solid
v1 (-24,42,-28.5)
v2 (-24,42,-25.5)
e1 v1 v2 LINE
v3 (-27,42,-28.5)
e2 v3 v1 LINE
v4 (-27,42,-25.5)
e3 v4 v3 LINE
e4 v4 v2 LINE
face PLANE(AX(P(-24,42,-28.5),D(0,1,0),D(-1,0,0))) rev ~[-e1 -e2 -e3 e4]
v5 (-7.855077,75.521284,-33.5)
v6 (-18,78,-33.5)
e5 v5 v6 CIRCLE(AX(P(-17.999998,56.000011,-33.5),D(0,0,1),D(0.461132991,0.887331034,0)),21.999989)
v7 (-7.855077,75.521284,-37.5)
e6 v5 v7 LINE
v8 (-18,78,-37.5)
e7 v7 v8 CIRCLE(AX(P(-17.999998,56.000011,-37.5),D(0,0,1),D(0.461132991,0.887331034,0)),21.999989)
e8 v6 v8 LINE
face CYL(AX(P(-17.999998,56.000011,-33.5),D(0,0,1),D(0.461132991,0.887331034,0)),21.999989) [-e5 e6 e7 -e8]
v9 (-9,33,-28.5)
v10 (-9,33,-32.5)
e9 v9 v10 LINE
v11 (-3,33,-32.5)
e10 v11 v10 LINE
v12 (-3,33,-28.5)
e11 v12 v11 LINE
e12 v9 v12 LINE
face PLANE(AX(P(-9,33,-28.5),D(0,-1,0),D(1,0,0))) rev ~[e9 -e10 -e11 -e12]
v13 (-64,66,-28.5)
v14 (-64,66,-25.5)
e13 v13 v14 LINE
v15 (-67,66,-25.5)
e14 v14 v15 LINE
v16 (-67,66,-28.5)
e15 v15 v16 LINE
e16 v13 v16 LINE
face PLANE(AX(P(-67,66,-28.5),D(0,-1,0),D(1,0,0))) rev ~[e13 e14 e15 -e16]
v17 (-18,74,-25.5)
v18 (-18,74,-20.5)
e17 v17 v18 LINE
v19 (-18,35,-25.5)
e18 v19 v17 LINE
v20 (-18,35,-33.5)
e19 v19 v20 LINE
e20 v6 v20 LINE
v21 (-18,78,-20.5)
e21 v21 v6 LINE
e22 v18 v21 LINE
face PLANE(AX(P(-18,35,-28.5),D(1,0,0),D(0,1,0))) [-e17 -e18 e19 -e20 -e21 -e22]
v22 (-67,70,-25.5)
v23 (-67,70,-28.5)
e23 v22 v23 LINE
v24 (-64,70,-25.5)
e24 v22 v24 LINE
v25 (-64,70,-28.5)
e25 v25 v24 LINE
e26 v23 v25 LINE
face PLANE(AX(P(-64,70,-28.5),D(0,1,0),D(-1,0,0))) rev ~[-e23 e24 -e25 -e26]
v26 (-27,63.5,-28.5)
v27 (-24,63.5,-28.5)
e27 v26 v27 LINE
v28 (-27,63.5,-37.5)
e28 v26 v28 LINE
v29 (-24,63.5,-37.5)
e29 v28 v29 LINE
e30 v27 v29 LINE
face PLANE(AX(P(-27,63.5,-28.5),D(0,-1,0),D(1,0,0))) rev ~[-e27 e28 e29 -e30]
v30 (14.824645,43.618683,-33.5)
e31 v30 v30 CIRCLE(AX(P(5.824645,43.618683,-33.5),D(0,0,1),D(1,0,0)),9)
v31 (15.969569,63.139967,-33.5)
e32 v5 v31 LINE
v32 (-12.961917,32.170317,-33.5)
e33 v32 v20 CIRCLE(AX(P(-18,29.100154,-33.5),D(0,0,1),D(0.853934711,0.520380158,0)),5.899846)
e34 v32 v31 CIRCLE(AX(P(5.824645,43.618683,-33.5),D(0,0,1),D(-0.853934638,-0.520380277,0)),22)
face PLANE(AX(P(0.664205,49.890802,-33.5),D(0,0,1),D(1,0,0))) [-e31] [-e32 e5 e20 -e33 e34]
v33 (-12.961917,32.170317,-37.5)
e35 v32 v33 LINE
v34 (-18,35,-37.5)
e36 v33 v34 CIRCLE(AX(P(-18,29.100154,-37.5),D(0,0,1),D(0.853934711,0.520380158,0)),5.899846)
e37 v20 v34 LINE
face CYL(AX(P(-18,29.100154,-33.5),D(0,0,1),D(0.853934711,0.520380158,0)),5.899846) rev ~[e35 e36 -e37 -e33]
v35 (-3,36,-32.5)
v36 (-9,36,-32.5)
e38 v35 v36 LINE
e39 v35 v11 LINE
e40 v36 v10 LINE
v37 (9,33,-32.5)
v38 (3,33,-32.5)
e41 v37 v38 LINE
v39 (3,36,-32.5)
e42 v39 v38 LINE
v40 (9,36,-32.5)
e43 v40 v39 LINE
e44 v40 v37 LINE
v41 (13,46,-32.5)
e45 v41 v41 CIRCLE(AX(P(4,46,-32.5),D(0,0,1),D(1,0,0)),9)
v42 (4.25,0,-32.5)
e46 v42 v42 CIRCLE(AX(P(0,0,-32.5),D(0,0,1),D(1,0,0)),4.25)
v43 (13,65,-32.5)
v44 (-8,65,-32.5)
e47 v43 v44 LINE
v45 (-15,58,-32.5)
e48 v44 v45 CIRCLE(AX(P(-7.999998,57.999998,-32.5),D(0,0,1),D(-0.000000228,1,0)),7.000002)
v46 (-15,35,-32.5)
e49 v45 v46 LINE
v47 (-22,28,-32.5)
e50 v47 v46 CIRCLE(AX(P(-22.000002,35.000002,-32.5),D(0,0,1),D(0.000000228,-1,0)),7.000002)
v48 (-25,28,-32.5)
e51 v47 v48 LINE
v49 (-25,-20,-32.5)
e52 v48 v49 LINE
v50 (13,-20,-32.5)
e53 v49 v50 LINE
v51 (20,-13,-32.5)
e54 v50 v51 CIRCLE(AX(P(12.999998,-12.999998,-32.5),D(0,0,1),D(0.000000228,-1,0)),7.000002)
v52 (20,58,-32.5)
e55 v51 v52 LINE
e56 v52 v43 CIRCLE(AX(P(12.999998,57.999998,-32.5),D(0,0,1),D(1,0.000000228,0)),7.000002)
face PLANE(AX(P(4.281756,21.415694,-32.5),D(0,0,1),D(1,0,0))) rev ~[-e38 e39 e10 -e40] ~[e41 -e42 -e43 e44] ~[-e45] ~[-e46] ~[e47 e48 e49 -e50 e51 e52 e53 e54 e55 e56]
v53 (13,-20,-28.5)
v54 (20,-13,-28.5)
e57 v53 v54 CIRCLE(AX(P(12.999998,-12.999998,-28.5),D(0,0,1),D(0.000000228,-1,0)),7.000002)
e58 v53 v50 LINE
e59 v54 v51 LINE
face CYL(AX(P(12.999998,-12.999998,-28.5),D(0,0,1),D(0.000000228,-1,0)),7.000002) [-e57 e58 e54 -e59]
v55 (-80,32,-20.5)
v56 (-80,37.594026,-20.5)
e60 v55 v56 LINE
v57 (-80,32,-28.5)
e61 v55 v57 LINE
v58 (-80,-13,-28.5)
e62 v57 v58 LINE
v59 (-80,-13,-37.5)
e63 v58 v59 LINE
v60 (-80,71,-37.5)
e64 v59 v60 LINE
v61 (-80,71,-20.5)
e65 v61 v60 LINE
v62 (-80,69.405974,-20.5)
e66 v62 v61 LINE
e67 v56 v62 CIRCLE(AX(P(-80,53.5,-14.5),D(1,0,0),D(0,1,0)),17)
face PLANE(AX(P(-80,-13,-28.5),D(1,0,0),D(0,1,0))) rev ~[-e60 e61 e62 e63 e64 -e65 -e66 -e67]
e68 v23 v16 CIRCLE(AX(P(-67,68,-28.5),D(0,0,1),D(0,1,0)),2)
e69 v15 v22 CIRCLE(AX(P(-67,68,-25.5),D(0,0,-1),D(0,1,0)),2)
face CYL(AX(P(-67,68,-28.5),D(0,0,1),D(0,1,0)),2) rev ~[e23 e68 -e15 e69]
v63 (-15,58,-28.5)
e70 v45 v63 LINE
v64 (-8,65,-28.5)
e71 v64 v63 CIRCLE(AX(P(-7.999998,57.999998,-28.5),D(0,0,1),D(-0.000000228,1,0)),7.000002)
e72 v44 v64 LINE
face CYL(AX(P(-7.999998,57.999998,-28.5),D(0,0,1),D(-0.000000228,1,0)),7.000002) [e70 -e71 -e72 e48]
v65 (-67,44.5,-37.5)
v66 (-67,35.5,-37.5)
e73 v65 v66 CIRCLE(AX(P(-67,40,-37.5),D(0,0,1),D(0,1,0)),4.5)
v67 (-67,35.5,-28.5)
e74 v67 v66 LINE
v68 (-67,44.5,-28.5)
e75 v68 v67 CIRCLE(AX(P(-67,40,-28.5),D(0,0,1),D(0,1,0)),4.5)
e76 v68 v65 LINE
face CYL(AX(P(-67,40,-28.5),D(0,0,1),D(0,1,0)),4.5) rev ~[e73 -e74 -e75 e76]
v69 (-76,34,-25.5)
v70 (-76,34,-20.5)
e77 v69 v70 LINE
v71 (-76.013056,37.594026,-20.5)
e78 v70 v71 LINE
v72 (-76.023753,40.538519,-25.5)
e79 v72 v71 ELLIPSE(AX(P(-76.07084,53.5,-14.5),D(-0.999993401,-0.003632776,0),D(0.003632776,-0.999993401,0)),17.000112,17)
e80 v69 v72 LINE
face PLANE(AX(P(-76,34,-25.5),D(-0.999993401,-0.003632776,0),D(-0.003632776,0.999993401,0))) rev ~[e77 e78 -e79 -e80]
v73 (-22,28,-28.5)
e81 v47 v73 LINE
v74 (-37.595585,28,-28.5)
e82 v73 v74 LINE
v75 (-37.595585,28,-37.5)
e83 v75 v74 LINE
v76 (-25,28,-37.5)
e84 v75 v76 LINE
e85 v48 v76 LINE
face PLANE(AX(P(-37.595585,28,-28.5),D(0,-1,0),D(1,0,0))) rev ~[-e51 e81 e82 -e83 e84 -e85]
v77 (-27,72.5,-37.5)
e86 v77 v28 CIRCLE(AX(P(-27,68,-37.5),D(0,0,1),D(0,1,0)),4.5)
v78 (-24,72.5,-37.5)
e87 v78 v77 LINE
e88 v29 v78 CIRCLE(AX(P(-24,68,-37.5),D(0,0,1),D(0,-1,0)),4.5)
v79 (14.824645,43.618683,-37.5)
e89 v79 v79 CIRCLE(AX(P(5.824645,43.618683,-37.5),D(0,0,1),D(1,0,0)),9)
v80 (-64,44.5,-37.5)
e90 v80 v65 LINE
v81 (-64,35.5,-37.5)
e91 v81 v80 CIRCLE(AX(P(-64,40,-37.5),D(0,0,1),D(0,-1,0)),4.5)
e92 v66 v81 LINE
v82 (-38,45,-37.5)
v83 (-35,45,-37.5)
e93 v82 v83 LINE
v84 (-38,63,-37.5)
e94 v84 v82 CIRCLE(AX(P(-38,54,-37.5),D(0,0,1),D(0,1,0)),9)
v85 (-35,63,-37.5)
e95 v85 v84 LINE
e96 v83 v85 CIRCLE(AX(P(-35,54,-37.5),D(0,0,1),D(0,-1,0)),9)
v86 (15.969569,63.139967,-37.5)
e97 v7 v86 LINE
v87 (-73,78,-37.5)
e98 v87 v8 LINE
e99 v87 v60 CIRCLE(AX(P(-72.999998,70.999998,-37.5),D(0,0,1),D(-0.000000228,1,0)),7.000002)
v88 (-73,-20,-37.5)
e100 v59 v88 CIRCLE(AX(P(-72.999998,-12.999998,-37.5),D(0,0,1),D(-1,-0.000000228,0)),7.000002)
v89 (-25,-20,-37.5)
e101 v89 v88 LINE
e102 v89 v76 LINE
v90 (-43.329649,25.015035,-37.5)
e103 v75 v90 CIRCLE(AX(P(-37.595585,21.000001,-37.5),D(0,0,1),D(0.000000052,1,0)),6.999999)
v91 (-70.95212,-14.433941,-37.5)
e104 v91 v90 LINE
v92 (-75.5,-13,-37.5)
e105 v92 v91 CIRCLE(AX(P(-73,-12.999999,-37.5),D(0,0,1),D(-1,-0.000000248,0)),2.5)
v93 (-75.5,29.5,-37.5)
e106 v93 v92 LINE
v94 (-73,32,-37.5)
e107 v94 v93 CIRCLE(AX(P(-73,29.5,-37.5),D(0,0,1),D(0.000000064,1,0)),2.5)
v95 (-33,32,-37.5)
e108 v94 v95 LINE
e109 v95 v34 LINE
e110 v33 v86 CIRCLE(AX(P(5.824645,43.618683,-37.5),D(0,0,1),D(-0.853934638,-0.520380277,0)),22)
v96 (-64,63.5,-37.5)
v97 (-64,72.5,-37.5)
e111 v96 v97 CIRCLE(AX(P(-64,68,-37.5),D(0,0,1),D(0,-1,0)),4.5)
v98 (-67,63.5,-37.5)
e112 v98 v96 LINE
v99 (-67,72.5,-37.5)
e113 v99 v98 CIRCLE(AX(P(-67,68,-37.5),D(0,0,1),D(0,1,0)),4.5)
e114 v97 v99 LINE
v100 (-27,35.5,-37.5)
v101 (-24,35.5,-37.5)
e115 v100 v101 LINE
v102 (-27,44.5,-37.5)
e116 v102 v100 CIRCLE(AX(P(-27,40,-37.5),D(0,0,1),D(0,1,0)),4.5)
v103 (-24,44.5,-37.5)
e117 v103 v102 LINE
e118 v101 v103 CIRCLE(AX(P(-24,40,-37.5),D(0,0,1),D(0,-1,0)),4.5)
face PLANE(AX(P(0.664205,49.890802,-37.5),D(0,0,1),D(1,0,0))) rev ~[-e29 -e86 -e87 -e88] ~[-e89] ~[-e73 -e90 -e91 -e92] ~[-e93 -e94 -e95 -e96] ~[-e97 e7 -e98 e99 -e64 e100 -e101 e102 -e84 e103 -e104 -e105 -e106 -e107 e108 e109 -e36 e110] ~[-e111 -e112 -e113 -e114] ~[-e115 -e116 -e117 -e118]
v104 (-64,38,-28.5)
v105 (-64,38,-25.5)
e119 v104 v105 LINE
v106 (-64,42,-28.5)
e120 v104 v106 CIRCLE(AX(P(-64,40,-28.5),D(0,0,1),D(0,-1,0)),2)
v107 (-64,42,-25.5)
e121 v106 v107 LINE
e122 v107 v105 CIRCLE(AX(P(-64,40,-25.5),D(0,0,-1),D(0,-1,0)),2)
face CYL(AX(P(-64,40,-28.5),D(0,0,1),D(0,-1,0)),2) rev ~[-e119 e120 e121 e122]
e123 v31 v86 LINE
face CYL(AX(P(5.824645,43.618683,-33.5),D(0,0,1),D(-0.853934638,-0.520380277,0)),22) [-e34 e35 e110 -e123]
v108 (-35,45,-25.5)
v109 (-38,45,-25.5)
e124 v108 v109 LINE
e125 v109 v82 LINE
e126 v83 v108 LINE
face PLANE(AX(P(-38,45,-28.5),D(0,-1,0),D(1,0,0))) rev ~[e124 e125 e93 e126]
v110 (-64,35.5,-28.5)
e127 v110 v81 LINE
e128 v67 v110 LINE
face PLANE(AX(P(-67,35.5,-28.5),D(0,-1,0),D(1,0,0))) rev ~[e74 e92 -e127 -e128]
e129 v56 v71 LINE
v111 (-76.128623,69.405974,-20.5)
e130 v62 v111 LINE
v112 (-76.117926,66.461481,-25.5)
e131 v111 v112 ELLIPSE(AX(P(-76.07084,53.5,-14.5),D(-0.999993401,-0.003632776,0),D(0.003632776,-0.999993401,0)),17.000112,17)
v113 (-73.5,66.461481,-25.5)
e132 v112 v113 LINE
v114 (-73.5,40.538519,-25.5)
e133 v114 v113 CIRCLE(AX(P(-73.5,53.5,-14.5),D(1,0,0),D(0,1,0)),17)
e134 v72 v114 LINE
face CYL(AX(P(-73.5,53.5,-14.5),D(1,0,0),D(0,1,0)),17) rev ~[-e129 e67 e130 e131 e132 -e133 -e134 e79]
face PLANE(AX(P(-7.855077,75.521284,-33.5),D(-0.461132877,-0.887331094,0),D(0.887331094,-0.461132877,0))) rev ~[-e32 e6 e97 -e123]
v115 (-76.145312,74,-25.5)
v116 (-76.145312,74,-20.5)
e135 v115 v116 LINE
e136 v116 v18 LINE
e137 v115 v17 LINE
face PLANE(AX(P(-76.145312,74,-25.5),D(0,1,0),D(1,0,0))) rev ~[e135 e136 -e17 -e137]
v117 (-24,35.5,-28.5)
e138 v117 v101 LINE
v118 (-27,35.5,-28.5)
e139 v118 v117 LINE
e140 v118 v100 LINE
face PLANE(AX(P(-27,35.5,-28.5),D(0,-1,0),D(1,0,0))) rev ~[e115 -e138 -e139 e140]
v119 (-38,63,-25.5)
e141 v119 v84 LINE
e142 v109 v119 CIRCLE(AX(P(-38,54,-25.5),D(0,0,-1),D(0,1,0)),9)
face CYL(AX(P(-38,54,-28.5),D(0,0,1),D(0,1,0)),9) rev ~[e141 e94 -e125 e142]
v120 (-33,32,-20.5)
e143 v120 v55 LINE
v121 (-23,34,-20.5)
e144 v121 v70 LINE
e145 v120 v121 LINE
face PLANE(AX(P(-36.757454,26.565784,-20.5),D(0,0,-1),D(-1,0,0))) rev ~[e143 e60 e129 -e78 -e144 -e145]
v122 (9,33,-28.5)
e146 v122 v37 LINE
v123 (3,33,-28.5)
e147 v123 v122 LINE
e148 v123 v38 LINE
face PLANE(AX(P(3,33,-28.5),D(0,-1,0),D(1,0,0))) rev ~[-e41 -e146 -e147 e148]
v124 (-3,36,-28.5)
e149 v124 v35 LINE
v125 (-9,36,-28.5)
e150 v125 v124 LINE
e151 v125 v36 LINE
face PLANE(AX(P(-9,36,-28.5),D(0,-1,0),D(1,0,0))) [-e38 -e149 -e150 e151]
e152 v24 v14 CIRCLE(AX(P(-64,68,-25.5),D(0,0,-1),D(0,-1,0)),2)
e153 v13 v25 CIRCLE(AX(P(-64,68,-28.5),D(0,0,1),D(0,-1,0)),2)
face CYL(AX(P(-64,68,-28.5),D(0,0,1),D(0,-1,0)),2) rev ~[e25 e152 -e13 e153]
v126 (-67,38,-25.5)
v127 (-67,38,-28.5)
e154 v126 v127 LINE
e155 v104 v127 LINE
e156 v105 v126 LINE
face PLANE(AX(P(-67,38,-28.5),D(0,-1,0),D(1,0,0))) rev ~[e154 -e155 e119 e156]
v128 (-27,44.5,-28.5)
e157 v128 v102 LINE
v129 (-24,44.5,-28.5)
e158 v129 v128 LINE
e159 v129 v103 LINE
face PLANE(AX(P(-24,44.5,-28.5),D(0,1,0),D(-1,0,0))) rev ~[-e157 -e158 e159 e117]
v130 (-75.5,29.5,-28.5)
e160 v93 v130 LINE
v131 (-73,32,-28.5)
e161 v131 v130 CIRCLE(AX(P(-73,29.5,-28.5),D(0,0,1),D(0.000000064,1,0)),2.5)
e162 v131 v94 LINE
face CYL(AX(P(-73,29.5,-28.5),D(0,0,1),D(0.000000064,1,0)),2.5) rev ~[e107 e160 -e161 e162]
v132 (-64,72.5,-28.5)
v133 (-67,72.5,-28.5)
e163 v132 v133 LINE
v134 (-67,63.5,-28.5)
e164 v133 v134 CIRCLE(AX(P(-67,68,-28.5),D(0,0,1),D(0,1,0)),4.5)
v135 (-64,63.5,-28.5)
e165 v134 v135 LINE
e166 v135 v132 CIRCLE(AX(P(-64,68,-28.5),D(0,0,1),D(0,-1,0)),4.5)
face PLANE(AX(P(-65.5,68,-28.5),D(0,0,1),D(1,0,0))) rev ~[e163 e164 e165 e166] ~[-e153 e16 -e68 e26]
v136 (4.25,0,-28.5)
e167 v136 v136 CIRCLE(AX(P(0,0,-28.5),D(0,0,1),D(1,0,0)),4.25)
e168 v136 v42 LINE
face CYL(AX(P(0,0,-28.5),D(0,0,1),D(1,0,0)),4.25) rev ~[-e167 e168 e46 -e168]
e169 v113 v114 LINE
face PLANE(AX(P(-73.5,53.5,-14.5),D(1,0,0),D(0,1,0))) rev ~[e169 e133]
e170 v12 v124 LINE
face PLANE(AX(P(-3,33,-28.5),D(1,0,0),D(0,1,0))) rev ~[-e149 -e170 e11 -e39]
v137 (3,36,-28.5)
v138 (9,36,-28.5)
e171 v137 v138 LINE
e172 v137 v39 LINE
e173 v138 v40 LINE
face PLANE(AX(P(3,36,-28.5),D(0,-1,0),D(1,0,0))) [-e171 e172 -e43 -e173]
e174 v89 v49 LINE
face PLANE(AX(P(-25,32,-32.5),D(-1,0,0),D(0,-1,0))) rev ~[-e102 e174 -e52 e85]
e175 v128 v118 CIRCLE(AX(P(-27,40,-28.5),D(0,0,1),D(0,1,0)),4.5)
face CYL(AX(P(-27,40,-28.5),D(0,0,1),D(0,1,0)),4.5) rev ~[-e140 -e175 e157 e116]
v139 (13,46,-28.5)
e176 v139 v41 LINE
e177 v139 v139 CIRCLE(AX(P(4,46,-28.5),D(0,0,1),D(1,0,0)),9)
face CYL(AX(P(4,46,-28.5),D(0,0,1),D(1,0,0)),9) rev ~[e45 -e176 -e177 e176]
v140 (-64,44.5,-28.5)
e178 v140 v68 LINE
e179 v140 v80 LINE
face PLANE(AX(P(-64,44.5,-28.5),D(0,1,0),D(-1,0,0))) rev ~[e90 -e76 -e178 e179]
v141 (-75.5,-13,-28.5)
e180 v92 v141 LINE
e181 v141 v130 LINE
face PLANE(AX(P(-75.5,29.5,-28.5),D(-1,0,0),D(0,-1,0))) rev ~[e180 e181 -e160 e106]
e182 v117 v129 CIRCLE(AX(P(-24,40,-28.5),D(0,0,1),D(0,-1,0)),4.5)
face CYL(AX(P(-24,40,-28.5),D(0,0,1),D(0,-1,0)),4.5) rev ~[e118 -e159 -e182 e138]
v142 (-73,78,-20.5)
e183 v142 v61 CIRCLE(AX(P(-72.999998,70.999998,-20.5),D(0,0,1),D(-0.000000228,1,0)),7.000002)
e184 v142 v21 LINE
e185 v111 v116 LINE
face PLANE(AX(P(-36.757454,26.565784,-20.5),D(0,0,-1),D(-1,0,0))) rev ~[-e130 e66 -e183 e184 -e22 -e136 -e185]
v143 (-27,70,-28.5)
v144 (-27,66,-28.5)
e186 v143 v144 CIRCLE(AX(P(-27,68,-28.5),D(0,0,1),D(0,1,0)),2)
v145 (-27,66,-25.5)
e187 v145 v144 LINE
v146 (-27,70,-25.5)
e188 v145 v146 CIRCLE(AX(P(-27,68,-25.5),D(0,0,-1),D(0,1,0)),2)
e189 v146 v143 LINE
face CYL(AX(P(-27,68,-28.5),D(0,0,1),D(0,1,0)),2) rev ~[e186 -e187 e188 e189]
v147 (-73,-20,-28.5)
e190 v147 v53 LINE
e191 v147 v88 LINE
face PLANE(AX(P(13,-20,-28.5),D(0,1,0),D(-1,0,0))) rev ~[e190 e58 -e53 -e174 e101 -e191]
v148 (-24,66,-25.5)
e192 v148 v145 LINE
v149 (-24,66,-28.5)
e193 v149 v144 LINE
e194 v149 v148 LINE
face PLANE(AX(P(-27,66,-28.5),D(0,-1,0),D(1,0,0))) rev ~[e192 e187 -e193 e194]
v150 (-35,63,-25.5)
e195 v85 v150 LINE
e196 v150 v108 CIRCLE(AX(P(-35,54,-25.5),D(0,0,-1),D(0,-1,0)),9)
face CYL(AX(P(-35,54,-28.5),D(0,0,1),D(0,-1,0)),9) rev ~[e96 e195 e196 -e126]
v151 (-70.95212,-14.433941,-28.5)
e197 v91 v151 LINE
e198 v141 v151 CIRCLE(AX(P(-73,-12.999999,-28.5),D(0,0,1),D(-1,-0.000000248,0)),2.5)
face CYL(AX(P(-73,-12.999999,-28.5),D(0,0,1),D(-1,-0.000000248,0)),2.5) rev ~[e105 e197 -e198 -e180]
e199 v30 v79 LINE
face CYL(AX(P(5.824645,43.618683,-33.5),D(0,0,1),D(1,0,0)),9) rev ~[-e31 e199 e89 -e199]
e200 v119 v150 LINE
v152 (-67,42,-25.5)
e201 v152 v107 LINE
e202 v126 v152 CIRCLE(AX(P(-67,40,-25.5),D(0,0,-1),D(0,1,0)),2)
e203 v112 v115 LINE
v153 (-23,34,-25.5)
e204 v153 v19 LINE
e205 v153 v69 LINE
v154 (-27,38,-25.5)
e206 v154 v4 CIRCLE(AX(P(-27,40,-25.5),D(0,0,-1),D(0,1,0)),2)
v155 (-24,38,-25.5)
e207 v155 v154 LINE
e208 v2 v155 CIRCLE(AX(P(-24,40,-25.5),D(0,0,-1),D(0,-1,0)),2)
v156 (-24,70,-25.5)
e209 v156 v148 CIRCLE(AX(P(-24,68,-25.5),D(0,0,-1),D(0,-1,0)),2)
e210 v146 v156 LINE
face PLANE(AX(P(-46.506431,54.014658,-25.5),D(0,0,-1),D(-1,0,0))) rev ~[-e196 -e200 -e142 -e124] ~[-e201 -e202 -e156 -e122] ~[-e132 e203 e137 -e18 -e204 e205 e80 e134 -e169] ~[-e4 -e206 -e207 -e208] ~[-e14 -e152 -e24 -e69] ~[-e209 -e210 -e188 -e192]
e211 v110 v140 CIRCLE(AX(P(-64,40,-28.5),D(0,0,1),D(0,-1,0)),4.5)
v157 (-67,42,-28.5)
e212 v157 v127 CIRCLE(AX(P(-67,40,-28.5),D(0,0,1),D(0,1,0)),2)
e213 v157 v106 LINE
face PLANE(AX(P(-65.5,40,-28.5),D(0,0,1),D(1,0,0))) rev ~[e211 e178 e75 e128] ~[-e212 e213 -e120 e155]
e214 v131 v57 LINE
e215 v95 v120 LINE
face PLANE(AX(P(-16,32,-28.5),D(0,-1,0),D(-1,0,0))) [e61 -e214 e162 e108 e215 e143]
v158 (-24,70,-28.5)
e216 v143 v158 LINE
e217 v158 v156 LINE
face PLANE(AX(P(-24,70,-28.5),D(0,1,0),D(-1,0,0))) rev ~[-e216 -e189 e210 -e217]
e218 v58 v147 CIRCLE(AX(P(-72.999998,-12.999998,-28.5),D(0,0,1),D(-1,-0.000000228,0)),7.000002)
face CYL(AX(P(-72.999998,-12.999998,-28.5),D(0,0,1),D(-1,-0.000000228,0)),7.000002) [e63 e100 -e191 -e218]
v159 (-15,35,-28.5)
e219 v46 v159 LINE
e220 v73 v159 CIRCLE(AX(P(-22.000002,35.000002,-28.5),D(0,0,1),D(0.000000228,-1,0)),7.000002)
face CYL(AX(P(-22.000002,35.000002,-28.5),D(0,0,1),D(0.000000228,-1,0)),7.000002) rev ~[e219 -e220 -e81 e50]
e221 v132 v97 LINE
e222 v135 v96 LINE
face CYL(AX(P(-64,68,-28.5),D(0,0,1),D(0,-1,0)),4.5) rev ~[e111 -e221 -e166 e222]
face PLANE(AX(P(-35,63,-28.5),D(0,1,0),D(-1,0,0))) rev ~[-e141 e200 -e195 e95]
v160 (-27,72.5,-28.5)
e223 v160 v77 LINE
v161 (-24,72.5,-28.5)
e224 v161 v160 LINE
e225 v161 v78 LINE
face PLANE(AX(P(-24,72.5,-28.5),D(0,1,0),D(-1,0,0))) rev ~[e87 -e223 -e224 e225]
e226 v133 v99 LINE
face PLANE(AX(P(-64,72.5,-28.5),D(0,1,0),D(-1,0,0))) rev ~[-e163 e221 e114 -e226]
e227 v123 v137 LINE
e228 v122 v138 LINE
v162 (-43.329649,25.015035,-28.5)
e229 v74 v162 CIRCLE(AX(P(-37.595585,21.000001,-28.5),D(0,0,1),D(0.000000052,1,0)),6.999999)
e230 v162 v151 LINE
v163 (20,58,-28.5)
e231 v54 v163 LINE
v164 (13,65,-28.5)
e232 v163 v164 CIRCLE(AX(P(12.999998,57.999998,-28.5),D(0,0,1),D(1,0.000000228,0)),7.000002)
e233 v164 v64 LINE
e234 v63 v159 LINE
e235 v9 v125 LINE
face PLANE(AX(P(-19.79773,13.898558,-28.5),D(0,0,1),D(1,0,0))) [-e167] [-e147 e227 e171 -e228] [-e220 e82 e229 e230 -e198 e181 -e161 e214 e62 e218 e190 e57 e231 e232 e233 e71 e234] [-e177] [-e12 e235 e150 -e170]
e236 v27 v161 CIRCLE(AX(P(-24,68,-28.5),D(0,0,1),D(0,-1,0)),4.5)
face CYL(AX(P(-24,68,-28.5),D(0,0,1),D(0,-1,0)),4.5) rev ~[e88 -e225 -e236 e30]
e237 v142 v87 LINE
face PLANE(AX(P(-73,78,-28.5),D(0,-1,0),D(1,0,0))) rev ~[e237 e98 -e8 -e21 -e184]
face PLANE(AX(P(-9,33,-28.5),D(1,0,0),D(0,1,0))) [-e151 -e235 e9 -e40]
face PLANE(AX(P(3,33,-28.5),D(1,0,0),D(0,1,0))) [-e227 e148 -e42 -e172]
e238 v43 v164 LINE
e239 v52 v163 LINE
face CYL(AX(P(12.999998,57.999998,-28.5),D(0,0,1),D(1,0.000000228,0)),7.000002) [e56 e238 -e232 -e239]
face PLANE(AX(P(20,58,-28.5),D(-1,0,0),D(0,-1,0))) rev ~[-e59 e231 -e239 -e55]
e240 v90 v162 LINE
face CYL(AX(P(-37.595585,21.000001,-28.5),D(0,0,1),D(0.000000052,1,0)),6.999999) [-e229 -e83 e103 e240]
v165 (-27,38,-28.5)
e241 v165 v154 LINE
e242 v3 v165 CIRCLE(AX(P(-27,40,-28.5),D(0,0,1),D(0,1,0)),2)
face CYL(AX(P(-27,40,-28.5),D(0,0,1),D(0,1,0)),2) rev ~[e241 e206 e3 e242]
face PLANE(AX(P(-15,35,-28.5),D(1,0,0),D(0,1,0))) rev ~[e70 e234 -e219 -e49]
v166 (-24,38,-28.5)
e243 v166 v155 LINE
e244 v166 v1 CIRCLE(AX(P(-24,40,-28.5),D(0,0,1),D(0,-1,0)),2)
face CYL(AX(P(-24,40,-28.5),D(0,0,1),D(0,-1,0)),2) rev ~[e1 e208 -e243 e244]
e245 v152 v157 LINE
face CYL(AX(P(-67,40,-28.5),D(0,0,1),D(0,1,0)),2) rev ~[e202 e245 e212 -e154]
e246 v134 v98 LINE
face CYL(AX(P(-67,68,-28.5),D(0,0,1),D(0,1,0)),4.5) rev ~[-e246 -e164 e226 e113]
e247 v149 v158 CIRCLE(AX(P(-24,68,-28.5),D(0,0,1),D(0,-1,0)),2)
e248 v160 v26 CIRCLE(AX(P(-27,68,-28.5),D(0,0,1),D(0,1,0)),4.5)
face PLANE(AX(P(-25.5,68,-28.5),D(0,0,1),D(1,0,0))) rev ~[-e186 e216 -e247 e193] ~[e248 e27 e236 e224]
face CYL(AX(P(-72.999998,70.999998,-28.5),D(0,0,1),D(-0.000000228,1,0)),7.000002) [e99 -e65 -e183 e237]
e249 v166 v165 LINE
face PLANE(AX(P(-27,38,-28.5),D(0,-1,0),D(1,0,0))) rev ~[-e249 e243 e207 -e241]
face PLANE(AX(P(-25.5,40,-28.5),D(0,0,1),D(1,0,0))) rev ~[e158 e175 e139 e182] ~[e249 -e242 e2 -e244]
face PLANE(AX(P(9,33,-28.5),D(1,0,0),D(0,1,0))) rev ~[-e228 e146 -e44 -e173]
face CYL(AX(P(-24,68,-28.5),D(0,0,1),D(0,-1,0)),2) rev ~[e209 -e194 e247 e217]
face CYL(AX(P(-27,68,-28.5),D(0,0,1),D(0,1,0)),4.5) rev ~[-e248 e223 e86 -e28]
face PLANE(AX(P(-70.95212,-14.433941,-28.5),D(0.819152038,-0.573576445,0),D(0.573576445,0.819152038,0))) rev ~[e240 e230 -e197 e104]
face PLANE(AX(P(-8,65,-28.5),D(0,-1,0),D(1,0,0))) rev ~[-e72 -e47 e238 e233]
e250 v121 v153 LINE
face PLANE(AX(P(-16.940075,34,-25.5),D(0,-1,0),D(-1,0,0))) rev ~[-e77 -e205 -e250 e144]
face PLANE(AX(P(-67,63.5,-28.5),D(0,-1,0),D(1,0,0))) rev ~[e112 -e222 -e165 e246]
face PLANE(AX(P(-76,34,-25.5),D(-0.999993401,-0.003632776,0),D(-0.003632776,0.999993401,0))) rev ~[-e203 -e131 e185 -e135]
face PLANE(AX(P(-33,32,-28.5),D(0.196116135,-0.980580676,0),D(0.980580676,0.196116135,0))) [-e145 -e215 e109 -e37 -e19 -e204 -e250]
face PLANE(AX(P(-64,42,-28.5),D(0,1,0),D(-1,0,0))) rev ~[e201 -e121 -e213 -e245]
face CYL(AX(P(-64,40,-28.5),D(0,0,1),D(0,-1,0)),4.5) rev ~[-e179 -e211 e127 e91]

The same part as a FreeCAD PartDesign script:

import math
import FreeCAD as App
import Part
import Sketcher
from FreeCAD import Vector
Q = App.Units.Quantity

doc = App.newDocument("Part")
body = doc.addObject("PartDesign::Body", "Body")

# Sketch on XY plane
sketch1 = doc.addObject("Sketcher::SketchObject", "Sketch")
body.addObject(sketch1)
sketch1.AttachmentSupport = (doc.XY_Plane, [""])
sketch1.MapMode = "FlatFace"
sketch1.addGeometry([
    Part.LineSegment(Vector(20, -13, 0), Vector(20, 58, 0)),  # 0
    Part.ArcOfCircle(Part.Circle(Vector(13, 58, 0), Vector(0, 0, 1), 7), math.radians(0), math.radians(90)),  # 1
    Part.LineSegment(Vector(13, 65, 0), Vector(-8, 65, 0)),  # 2
    Part.ArcOfCircle(Part.Circle(Vector(-8, 58, 0), Vector(0, 0, 1), 7), math.radians(90), math.radians(180)),  # 3
    Part.LineSegment(Vector(-15, 58, 0), Vector(-15, 35, 0)),  # 4
    Part.ArcOfCircle(Part.Circle(Vector(-22, 35, 0), Vector(0, 0, 1), 7), math.radians(-90), math.radians(0)),  # 5
    Part.LineSegment(Vector(-22, 28, 0), Vector(-37.6, 28, 0)),  # 6
    Part.ArcOfCircle(Part.Circle(Vector(-37.6, 21, 0), Vector(0, 0, 1), 7), math.radians(90), math.radians(145)),  # 7
    Part.LineSegment(Vector(-43.3, 25, 0), Vector(-71, -14.4, 0)),  # 8
    Part.ArcOfCircle(Part.Circle(Vector(-73, -13, 0), Vector(0, 0, 1), 2.5), math.radians(-180), math.radians(-35)),  # 9
    Part.LineSegment(Vector(-75.5, -13, 0), Vector(-75.5, 29.5, 0)),  # 10
    Part.ArcOfCircle(Part.Circle(Vector(-73, 29.5, 0), Vector(0, 0, 1), 2.5), math.radians(90), math.radians(180)),  # 11
    Part.LineSegment(Vector(-73, 32, 0), Vector(-33, 32, 0)),  # 12
    Part.LineSegment(Vector(-33, 32, 0), Vector(-18, 35, 0)),  # 13
    Part.LineSegment(Vector(-18, 35, 0), Vector(-18, 78, 0)),  # 14
    Part.LineSegment(Vector(-18, 78, 0), Vector(-73, 78, 0)),  # 15
    Part.ArcOfCircle(Part.Circle(Vector(-73, 71, 0), Vector(0, 0, 1), 7), math.radians(90), math.radians(180)),  # 16
    Part.LineSegment(Vector(-80, 71, 0), Vector(-80, -13, 0)),  # 17
    Part.ArcOfCircle(Part.Circle(Vector(-73, -13, 0), Vector(0, 0, 1), 7), math.radians(-180), math.radians(-90)),  # 18
    Part.LineSegment(Vector(-73, -20, 0), Vector(13, -20, 0)),  # 19
    Part.ArcOfCircle(Part.Circle(Vector(13, -13, 0), Vector(0, 0, 1), 7), math.radians(-90), math.radians(0)),  # 20
    Part.Circle(Vector(0, 0, 0), Vector(0, 0, 1), 4.2),  # 21
    Part.LineSegment(Vector(3, 33, 0), Vector(3, 36, 0)),  # 22
    Part.LineSegment(Vector(3, 36, 0), Vector(9, 36, 0)),  # 23
    Part.LineSegment(Vector(9, 36, 0), Vector(9, 33, 0)),  # 24
    Part.LineSegment(Vector(9, 33, 0), Vector(3, 33, 0)),  # 25
    Part.LineSegment(Vector(-9, 33, 0), Vector(-9, 36, 0)),  # 26
    Part.LineSegment(Vector(-9, 36, 0), Vector(-3, 36, 0)),  # 27
    Part.LineSegment(Vector(-3, 36, 0), Vector(-3, 33, 0)),  # 28
    Part.LineSegment(Vector(-3, 33, 0), Vector(-9, 33, 0)),  # 29
    Part.Circle(Vector(4, 46, 0), Vector(0, 0, 1), 9),  # 30
    Part.LineSegment(Vector(-27, 42, 0), Vector(-24, 42, 0)),  # 31
    Part.ArcOfCircle(Part.Circle(Vector(-24, 40, 0), Vector(0, 0, 1), 2), math.radians(-90), math.radians(90)),  # 32
    Part.LineSegment(Vector(-24, 38, 0), Vector(-27, 38, 0)),  # 33
    Part.ArcOfCircle(Part.Circle(Vector(-27, 40, 0), Vector(0, 0, 1), 2), math.radians(90), math.radians(270)),  # 34
    Part.LineSegment(Vector(-27, 70, 0), Vector(-24, 70, 0)),  # 35
    Part.ArcOfCircle(Part.Circle(Vector(-24, 68, 0), Vector(0, 0, 1), 2), math.radians(-90), math.radians(90)),  # 36
    Part.LineSegment(Vector(-24, 66, 0), Vector(-27, 66, 0)),  # 37
    Part.ArcOfCircle(Part.Circle(Vector(-27, 68, 0), Vector(0, 0, 1), 2), math.radians(90), math.radians(270)),  # 38
    Part.LineSegment(Vector(-67, 42, 0), Vector(-64, 42, 0)),  # 39
    Part.ArcOfCircle(Part.Circle(Vector(-64, 40, 0), Vector(0, 0, 1), 2), math.radians(-90), math.radians(90)),  # 40
    Part.LineSegment(Vector(-64, 38, 0), Vector(-67, 38, 0)),  # 41
    Part.ArcOfCircle(Part.Circle(Vector(-67, 40, 0), Vector(0, 0, 1), 2), math.radians(90), math.radians(270)),  # 42
    Part.LineSegment(Vector(-38, 63, 0), Vector(-35, 63, 0)),  # 43
    Part.ArcOfCircle(Part.Circle(Vector(-35, 54, 0), Vector(0, 0, 1), 9), math.radians(-90), math.radians(90)),  # 44
    Part.LineSegment(Vector(-35, 45, 0), Vector(-38, 45, 0)),  # 45
    Part.ArcOfCircle(Part.Circle(Vector(-38, 54, 0), Vector(0, 0, 1), 9), math.radians(90), math.radians(270)),  # 46
    Part.LineSegment(Vector(-67, 70, 0), Vector(-64, 70, 0)),  # 47
    Part.ArcOfCircle(Part.Circle(Vector(-64, 68, 0), Vector(0, 0, 1), 2), math.radians(-90), math.radians(90)),  # 48
    Part.LineSegment(Vector(-64, 66, 0), Vector(-67, 66, 0)),  # 49
    Part.ArcOfCircle(Part.Circle(Vector(-67, 68, 0), Vector(0, 0, 1), 2), math.radians(90), math.radians(270)),  # 50
], False)
sketch1.addConstraint([
    Sketcher.Constraint("Tangent", 0, 2, 1, 1),
    Sketcher.Constraint("Tangent", 1, 2, 2, 1),
    Sketcher.Constraint("Tangent", 2, 2, 3, 1),
    Sketcher.Constraint("Tangent", 3, 2, 4, 1),
    Sketcher.Constraint("Tangent", 4, 2, 5, 2),
    Sketcher.Constraint("Tangent", 5, 1, 6, 1),
    Sketcher.Constraint("Tangent", 6, 2, 7, 1),
    Sketcher.Constraint("Tangent", 7, 2, 8, 1),
    Sketcher.Constraint("Tangent", 8, 2, 9, 2),
    Sketcher.Constraint("Tangent", 9, 1, 10, 1),
    Sketcher.Constraint("Tangent", 10, 2, 11, 2),
    Sketcher.Constraint("Tangent", 11, 1, 12, 1),
    Sketcher.Constraint("Coincident", 12, 2, 13, 1),
    Sketcher.Constraint("Coincident", 13, 2, 14, 1),
    Sketcher.Constraint("Coincident", 14, 2, 15, 1),
    Sketcher.Constraint("Tangent", 15, 2, 16, 1),
    Sketcher.Constraint("Tangent", 16, 2, 17, 1),
    Sketcher.Constraint("Tangent", 17, 2, 18, 1),
    Sketcher.Constraint("Tangent", 18, 2, 19, 1),
    Sketcher.Constraint("Tangent", 19, 2, 20, 1),
    Sketcher.Constraint("Tangent", 20, 2, 0, 1),
    Sketcher.Constraint("Coincident", 22, 2, 23, 1),
    Sketcher.Constraint("Coincident", 23, 2, 24, 1),
    Sketcher.Constraint("Coincident", 24, 2, 25, 1),
    Sketcher.Constraint("Coincident", 25, 2, 22, 1),
    Sketcher.Constraint("Coincident", 26, 2, 27, 1),
    Sketcher.Constraint("Coincident", 27, 2, 28, 1),
    Sketcher.Constraint("Coincident", 28, 2, 29, 1),
    Sketcher.Constraint("Coincident", 29, 2, 26, 1),
    Sketcher.Constraint("Tangent", 31, 2, 32, 2),
    Sketcher.Constraint("Tangent", 32, 1, 33, 1),
    Sketcher.Constraint("Tangent", 33, 2, 34, 2),
    Sketcher.Constraint("Tangent", 34, 1, 31, 1),
    Sketcher.Constraint("Tangent", 35, 2, 36, 2),
    Sketcher.Constraint("Tangent", 36, 1, 37, 1),
    Sketcher.Constraint("Tangent", 37, 2, 38, 2),
    Sketcher.Constraint("Tangent", 38, 1, 35, 1),
    Sketcher.Constraint("Tangent", 39, 2, 40, 2),
    Sketcher.Constraint("Tangent", 40, 1, 41, 1),
    Sketcher.Constraint("Tangent", 41, 2, 42, 2),
    Sketcher.Constraint("Tangent", 42, 1, 39, 1),
    Sketcher.Constraint("Tangent", 43, 2, 44, 2),
    Sketcher.Constraint("Tangent", 44, 1, 45, 1),
    Sketcher.Constraint("Tangent", 45, 2, 46, 2),
    Sketcher.Constraint("Tangent", 46, 1, 43, 1),
    Sketcher.Constraint("Tangent", 47, 2, 48, 2),
    Sketcher.Constraint("Tangent", 48, 1, 49, 1),
    Sketcher.Constraint("Tangent", 49, 2, 50, 2),
    Sketcher.Constraint("Tangent", 50, 1, 47, 1),
    Sketcher.Constraint("Vertical", 0),
    Sketcher.Constraint("Horizontal", 2),
    Sketcher.Constraint("Vertical", 4),
    Sketcher.Constraint("Horizontal", 6),
    Sketcher.Constraint("Vertical", 10),
    Sketcher.Constraint("Horizontal", 12),
    Sketcher.Constraint("Vertical", 14),
    Sketcher.Constraint("Horizontal", 15),
    Sketcher.Constraint("Vertical", 17),
    Sketcher.Constraint("Horizontal", 19),
    Sketcher.Constraint("Vertical", 22),
    Sketcher.Constraint("Horizontal", 23),
    Sketcher.Constraint("Vertical", 24),
    Sketcher.Constraint("Horizontal", 25),
    Sketcher.Constraint("Vertical", 26),
    Sketcher.Constraint("Horizontal", 27),
    Sketcher.Constraint("Vertical", 28),
    Sketcher.Constraint("Horizontal", 29),
    Sketcher.Constraint("Horizontal", 31),
    Sketcher.Constraint("Horizontal", 33),
    Sketcher.Constraint("Horizontal", 35),
    Sketcher.Constraint("Horizontal", 37),
    Sketcher.Constraint("Horizontal", 39),
    Sketcher.Constraint("Horizontal", 41),
    Sketcher.Constraint("Horizontal", 43),
    Sketcher.Constraint("Horizontal", 45),
    Sketcher.Constraint("Horizontal", 47),
    Sketcher.Constraint("Horizontal", 49),
    Sketcher.Constraint("Coincident", 21, 3, -1, 1),
    Sketcher.Constraint("Coincident", 18, 3, 9, 3),
    Sketcher.Constraint("Equal", 1, 3),
    Sketcher.Constraint("Equal", 3, 5),
    Sketcher.Constraint("Equal", 9, 11),
    Sketcher.Constraint("Equal", 5, 16),
    Sketcher.Constraint("Equal", 16, 18),
    Sketcher.Constraint("Equal", 18, 20),
    Sketcher.Constraint("Equal", 34, 36),
    Sketcher.Constraint("Equal", 38, 40),
    Sketcher.Constraint("Equal", 30, 44),
    Sketcher.Constraint("Equal", 42, 48),
    Sketcher.Constraint("Symmetric", 23, 2, 26, 2, -2),
    Sketcher.Constraint("Symmetric", 25, 2, 28, 2, -2),
    Sketcher.Constraint("Horizontal", 34, 3, 40, 3),
    Sketcher.Constraint("Horizontal", 38, 3, 48, 3),
    Sketcher.Constraint("Horizontal", 4, 2, 13, 2),
    Sketcher.Constraint("Vertical", 32, 3, 36, 3),
    Sketcher.Constraint("Vertical", 34, 3, 38, 3),
    Sketcher.Constraint("Vertical", 40, 3, 48, 3),
    Sketcher.Constraint("Vertical", 42, 3, 50, 3),
    Sketcher.Constraint("Equal", 37, 39),
    Sketcher.Constraint("Equal", 41, 43),
    Sketcher.Constraint("Equal", 49, 22),
    Sketcher.Constraint("Diameter", 30, Q("18 mm")),
    Sketcher.Constraint("Radius", 1, Q("7.000002 mm")),
    Sketcher.Constraint("Radius", 7, Q("6.999999 mm")),
    Sketcher.Constraint("Radius", 32, Q("2 mm")),
    Sketcher.Constraint("Diameter", 21, Q("8.5 mm")),
    Sketcher.Constraint("Radius", 9, Q("2.5 mm")),
    Sketcher.Constraint("DistanceX", 2, 2, 2, 1, Q("21 mm")),
    Sketcher.Constraint("DistanceX", 12, 1, 12, 2, Q("40 mm")),
    Sketcher.Constraint("DistanceX", 15, 2, 15, 1, Q("55 mm")),
    Sketcher.Constraint("DistanceX", 19, 1, 19, 2, Q("86 mm")),
    Sketcher.Constraint("DistanceX", 23, 1, 23, 2, Q("6 mm")),
    Sketcher.Constraint("DistanceX", 31, 1, 31, 2, Q("3 mm")),
    Sketcher.Constraint("DistanceY", 0, 1, 0, 2, Q("71 mm")),
    Sketcher.Constraint("DistanceY", 4, 2, 4, 1, Q("23 mm")),
    Sketcher.Constraint("DistanceY", 14, 1, 14, 2, Q("43 mm")),
    Sketcher.Constraint("Angle", 8, Q("-125.000001 deg")),
    Sketcher.Constraint("DistanceY", 10, 1, 10, 2, Q("42.5 mm")),
    Sketcher.Constraint("DistanceX", -1, 1, 1, 3, Q("12.999998 mm")),
    Sketcher.Constraint("DistanceY", -1, 1, 1, 3, Q("57.999998 mm")),
    Sketcher.Constraint("DistanceX", -1, 1, 30, 3, Q("4 mm")),
    Sketcher.Constraint("DistanceY", -1, 1, 30, 3, Q("46 mm")),
    Sketcher.Constraint("DistanceX", 32, 3, -1, 1, Q("24 mm")),
    Sketcher.Constraint("DistanceY", -1, 1, 32, 3, Q("40 mm")),
    Sketcher.Constraint("DistanceY", -1, 1, 36, 3, Q("68 mm")),
    Sketcher.Constraint("DistanceX", 40, 3, -1, 1, Q("64 mm")),
    Sketcher.Constraint("DistanceX", 44, 3, -1, 1, Q("35 mm")),
    Sketcher.Constraint("DistanceY", -1, 1, 44, 3, Q("54 mm")),
    Sketcher.Constraint("DistanceX", -1, 1, 22, 2, Q("3 mm")),
    Sketcher.Constraint("DistanceY", -1, 1, 22, 2, Q("36 mm")),
])
pad1 = doc.addObject("PartDesign::Pad", "Pad")
body.addObject(pad1)
pad1.Profile = sketch1
pad1.Type = "TwoLengths"
pad1.Length = 8
pad1.Length2 = 9

# Sketch on XY plane
sketch2 = doc.addObject("Sketcher::SketchObject", "Sketch001")
body.addObject(sketch2)
sketch2.AttachmentSupport = (doc.XY_Plane, [""])
sketch2.MapMode = "FlatFace"
sketch2.AttachmentOffset = App.Placement(Vector(0, 0, 3), App.Rotation())
sketch2.addGeometry([
    Part.LineSegment(Vector(-17, 74, 0), Vector(-76, 74, 0)),
    Part.LineSegment(Vector(-76, 74, 0), Vector(-76, 34, 0)),
    Part.LineSegment(Vector(-76, 34, 0), Vector(-17, 34, 0)),
    Part.LineSegment(Vector(-17, 34, 0), Vector(-17, 74, 0)),
], False)
sketch2.addConstraint([
    Sketcher.Constraint("Coincident", 0, 2, 1, 1),
    Sketcher.Constraint("Coincident", 1, 2, 2, 1),
    Sketcher.Constraint("Coincident", 2, 2, 3, 1),
    Sketcher.Constraint("Coincident", 3, 2, 0, 1),
    Sketcher.Constraint("Horizontal", 0),
    Sketcher.Constraint("Horizontal", 2),
    Sketcher.Constraint("Vertical", 3),
    Sketcher.Constraint("DistanceY", 3, 1, 3, 2, Q("40 mm")),
    Sketcher.Constraint("DistanceY", -1, 1, 0, 2, Q("74 mm")),
    Sketcher.Constraint("DistanceX", 1, 2, -1, 1, Q("76 mm")),
    Sketcher.Constraint("DistanceX", 0, 2, 0, 1, Q("59.205237 mm")),
    Sketcher.Constraint("DistanceX", 2, 1, 2, 2, Q("59.059925 mm")),
])
pocket1 = doc.addObject("PartDesign::Pocket", "Pocket")
body.addObject(pocket1)
pocket1.Profile = sketch2
pocket1.Type = "ThroughAll"
pocket1.Reversed = True

# Sketch on YZ plane
sketch3 = doc.addObject("Sketcher::SketchObject", "Sketch002")
body.addObject(sketch3)
sketch3.AttachmentSupport = (doc.YZ_Plane, [""])
sketch3.MapMode = "FlatFace"
sketch3.AttachmentOffset = App.Placement(Vector(0, 0, -73.5), App.Rotation())
sketch3.addGeometry(Part.Circle(Vector(54, 14, 0), Vector(0, 0, 1), 17), False)
sketch3.addConstraint([
    Sketcher.Constraint("Diameter", 0, Q("34 mm")),
    Sketcher.Constraint("DistanceY", -1, 1, 0, 3, Q("14 mm")),
    Sketcher.Constraint("DistanceX", -1, 1, 0, 3, Q("53.5 mm")),
])
pocket2 = doc.addObject("PartDesign::Pocket", "Pocket001")
body.addObject(pocket2)
pocket2.Profile = sketch3
pocket2.Type = "ThroughAll"

# Sketch on XY plane
sketch4 = doc.addObject("Sketcher::SketchObject", "Sketch003")
body.addObject(sketch4)
sketch4.AttachmentSupport = (doc.XY_Plane, [""])
sketch4.MapMode = "FlatFace"
sketch4.addGeometry([
    Part.LineSegment(Vector(-85, 32, 0), Vector(-85, -29, 0)),  # 0
    Part.LineSegment(Vector(-85, -29, 0), Vector(34, -29, 0)),  # 1
    Part.LineSegment(Vector(34, -29, 0), Vector(34, 68, 0)),  # 2
    Part.LineSegment(Vector(34, 68, 0), Vector(-16, 68, 0)),  # 3
    Part.LineSegment(Vector(-16, 68, 0), Vector(-16, 32, 0)),  # 4
    Part.LineSegment(Vector(-16, 32, 0), Vector(-85, 32, 0)),  # 5
], False)
sketch4.addConstraint([
    Sketcher.Constraint("Coincident", 0, 2, 1, 1),
    Sketcher.Constraint("Coincident", 1, 2, 2, 1),
    Sketcher.Constraint("Coincident", 2, 2, 3, 1),
    Sketcher.Constraint("Coincident", 3, 2, 4, 1),
    Sketcher.Constraint("Coincident", 4, 2, 5, 1),
    Sketcher.Constraint("Coincident", 5, 2, 0, 1),
    Sketcher.Constraint("Vertical", 0),
    Sketcher.Constraint("Horizontal", 1),
    Sketcher.Constraint("Vertical", 2),
    Sketcher.Constraint("Horizontal", 3),
    Sketcher.Constraint("Vertical", 4),
    Sketcher.Constraint("Horizontal", 5),
    Sketcher.Constraint("DistanceX", 3, 2, -1, 1, Q("16 mm")),
    Sketcher.Constraint("DistanceY", -1, 1, 4, 2, Q("32 mm")),
    Sketcher.Constraint("DistanceX", 1, 1, 1, 2, Q("119.024921 mm")),
    Sketcher.Constraint("DistanceY", 2, 1, 2, 2, Q("96.922631 mm")),
    Sketcher.Constraint("DistanceY", 4, 2, 4, 1, Q("36.141579 mm")),
    Sketcher.Constraint("DistanceX", 3, 2, 3, 1, Q("49.933025 mm")),
])
pocket3 = doc.addObject("PartDesign::Pocket", "Pocket002")
body.addObject(pocket3)
pocket3.Profile = sketch4
pocket3.Type = "ThroughAll"
pocket3.Reversed = True

# Sketch on XY plane
sketch5 = doc.addObject("Sketcher::SketchObject", "Sketch004")
body.addObject(sketch5)
sketch5.AttachmentSupport = (doc.XY_Plane, [""])
sketch5.MapMode = "FlatFace"
sketch5.AttachmentOffset = App.Placement(Vector(0, 0, -4), App.Rotation())
sketch5.addGeometry([
    Part.LineSegment(Vector(31, 73, 0), Vector(-16, 73, 0)),  # 0
    Part.LineSegment(Vector(-16, 73, 0), Vector(-16, 35, 0)),  # 1
    Part.LineSegment(Vector(-16, 35, 0), Vector(-25, 32, 0)),  # 2
    Part.LineSegment(Vector(-25, 32, 0), Vector(-25, -28, 0)),  # 3
    Part.LineSegment(Vector(-25, -28, 0), Vector(31, -28, 0)),  # 4
    Part.LineSegment(Vector(31, -28, 0), Vector(31, 73, 0)),  # 5
], False)
sketch5.addConstraint([
    Sketcher.Constraint("Coincident", 0, 2, 1, 1),
    Sketcher.Constraint("Coincident", 1, 2, 2, 1),
    Sketcher.Constraint("Coincident", 2, 2, 3, 1),
    Sketcher.Constraint("Coincident", 3, 2, 4, 1),
    Sketcher.Constraint("Coincident", 4, 2, 5, 1),
    Sketcher.Constraint("Coincident", 5, 2, 0, 1),
    Sketcher.Constraint("Horizontal", 0),
    Sketcher.Constraint("Vertical", 1),
    Sketcher.Constraint("Vertical", 3),
    Sketcher.Constraint("Horizontal", 4),
    Sketcher.Constraint("Vertical", 5),
    Sketcher.Constraint("DistanceX", 2, 2, -1, 1, Q("25 mm")),
    Sketcher.Constraint("DistanceY", -1, 1, 2, 2, Q("32 mm")),
    Sketcher.Constraint("DistanceY", 1, 2, 1, 1, Q("38.464001 mm")),
    Sketcher.Constraint("DistanceY", 5, 1, 5, 2, Q("101.01565 mm")),
    Sketcher.Constraint("DistanceX", 0, 2, 0, 1, Q("46.546366 mm")),
    Sketcher.Constraint("DistanceX", 4, 1, 4, 2, Q("55.837446 mm")),
    Sketcher.Constraint("DistanceY", 3, 2, 3, 1, Q("59.823572 mm")),
])
pocket4 = doc.addObject("PartDesign::Pocket", "Pocket003")
body.addObject(pocket4)
pocket4.Profile = sketch5
pocket4.Type = "ThroughAll"

# Sketch on XY plane
sketch6 = doc.addObject("Sketcher::SketchObject", "Sketch005")
body.addObject(sketch6)
sketch6.AttachmentSupport = (doc.XY_Plane, [""])
sketch6.MapMode = "FlatFace"
sketch6.AttachmentOffset = App.Placement(Vector(0, 0, -5), App.Rotation())
sketch6.addGeometry([
    Part.ArcOfCircle(Part.Circle(Vector(6, 44, 0), Vector(0, 0, 1), 22), math.radians(-149), math.radians(63)),  # 0
    Part.LineSegment(Vector(16, 63, 0), Vector(-8, 76, 0)),  # 1
    Part.ArcOfCircle(Part.Circle(Vector(-18, 56, 0), Vector(0, 0, 1), 22), math.radians(63), math.radians(90)),  # 2
    Part.LineSegment(Vector(-18, 78, 0), Vector(-18, 35, 0)),  # 3
    Part.ArcOfCircle(Part.Circle(Vector(-18, 29, 0), Vector(0, 0, 1), 6), math.radians(31), math.radians(90)),  # 4
    Part.Circle(Vector(6, 44, 0), Vector(0, 0, 1), 9),  # 5
], False)
sketch6.addConstraint([
    Sketcher.Constraint("Tangent", 0, 2, 1, 1),
    Sketcher.Constraint("Tangent", 1, 2, 2, 1),
    Sketcher.Constraint("Coincident", 2, 2, 3, 1),
    Sketcher.Constraint("Coincident", 3, 2, 4, 2),
    Sketcher.Constraint("Tangent", 4, 1, 0, 1),
    Sketcher.Constraint("Vertical", 3),
    Sketcher.Constraint("Coincident", 5, 3, 0, 3),
    Sketcher.Constraint("Vertical", 4, 3, 2, 2),
    Sketcher.Constraint("Diameter", 5, Q("18 mm")),
    Sketcher.Constraint("Radius", 0, Q("22 mm")),
    Sketcher.Constraint("DistanceY", 3, 2, 3, 1, Q("43 mm")),
    Sketcher.Constraint("DistanceX", 4, 3, -1, 1, Q("18 mm")),
    Sketcher.Constraint("DistanceY", -1, 1, 2, 2, Q("78 mm")),
    Sketcher.Constraint("Radius", 2, Q("21.999989 mm")),
    Sketcher.Constraint("Radius", 4, Q("5.899846 mm")),
    Sketcher.Constraint("DistanceY", 0, 3, 1, 2, Q("31.902601 mm")),
    Sketcher.Constraint("Distance", 1, Q("26.849782 mm")),
])
pad2 = doc.addObject("PartDesign::Pad", "Pad001")
body.addObject(pad2)
pad2.Profile = sketch6
pad2.Length = 4
pad2.Reversed = True

# Sketch on XY plane
sketch7 = doc.addObject("Sketcher::SketchObject", "Sketch006")
body.addObject(sketch7)
sketch7.AttachmentSupport = (doc.XY_Plane, [""])
sketch7.MapMode = "FlatFace"
sketch7.addGeometry([
    Part.ArcOfCircle(Part.Circle(Vector(-67, 40, 0), Vector(0, 0, 1), 4.5), math.radians(90), math.radians(270)),  # 0
    Part.LineSegment(Vector(-67, 35.5, 0), Vector(-64, 35.5, 0)),  # 1
    Part.ArcOfCircle(Part.Circle(Vector(-64, 40, 0), Vector(0, 0, 1), 4.5), math.radians(-90), math.radians(90)),  # 2
    Part.LineSegment(Vector(-64, 44.5, 0), Vector(-67, 44.5, 0)),  # 3
    Part.ArcOfCircle(Part.Circle(Vector(-67, 68, 0), Vector(0, 0, 1), 4.5), math.radians(90), math.radians(270)),  # 4
    Part.LineSegment(Vector(-67, 63.5, 0), Vector(-64, 63.5, 0)),  # 5
    Part.ArcOfCircle(Part.Circle(Vector(-64, 68, 0), Vector(0, 0, 1), 4.5), math.radians(-90), math.radians(90)),  # 6
    Part.LineSegment(Vector(-64, 72.5, 0), Vector(-67, 72.5, 0)),  # 7
    Part.ArcOfCircle(Part.Circle(Vector(-27, 68, 0), Vector(0, 0, 1), 4.5), math.radians(90), math.radians(270)),  # 8
    Part.LineSegment(Vector(-27, 63.5, 0), Vector(-24, 63.5, 0)),  # 9
    Part.ArcOfCircle(Part.Circle(Vector(-24, 68, 0), Vector(0, 0, 1), 4.5), math.radians(-90), math.radians(90)),  # 10
    Part.LineSegment(Vector(-24, 72.5, 0), Vector(-27, 72.5, 0)),  # 11
    Part.ArcOfCircle(Part.Circle(Vector(-27, 40, 0), Vector(0, 0, 1), 4.5), math.radians(90), math.radians(270)),  # 12
    Part.LineSegment(Vector(-27, 35.5, 0), Vector(-24, 35.5, 0)),  # 13
    Part.ArcOfCircle(Part.Circle(Vector(-24, 40, 0), Vector(0, 0, 1), 4.5), math.radians(-90), math.radians(90)),  # 14
    Part.LineSegment(Vector(-24, 44.5, 0), Vector(-27, 44.5, 0)),  # 15
], False)
sketch7.addConstraint([
    Sketcher.Constraint("Tangent", 0, 2, 1, 1),
    Sketcher.Constraint("Tangent", 1, 2, 2, 1),
    Sketcher.Constraint("Tangent", 2, 2, 3, 1),
    Sketcher.Constraint("Tangent", 3, 2, 0, 1),
    Sketcher.Constraint("Tangent", 4, 2, 5, 1),
    Sketcher.Constraint("Tangent", 5, 2, 6, 1),
    Sketcher.Constraint("Tangent", 6, 2, 7, 1),
    Sketcher.Constraint("Tangent", 7, 2, 4, 1),
    Sketcher.Constraint("Tangent", 8, 2, 9, 1),
    Sketcher.Constraint("Tangent", 9, 2, 10, 1),
    Sketcher.Constraint("Tangent", 10, 2, 11, 1),
    Sketcher.Constraint("Tangent", 11, 2, 8, 1),
    Sketcher.Constraint("Tangent", 12, 2, 13, 1),
    Sketcher.Constraint("Tangent", 13, 2, 14, 1),
    Sketcher.Constraint("Tangent", 14, 2, 15, 1),
    Sketcher.Constraint("Tangent", 15, 2, 12, 1),
    Sketcher.Constraint("Horizontal", 1),
    Sketcher.Constraint("Horizontal", 3),
    Sketcher.Constraint("Horizontal", 5),
    Sketcher.Constraint("Horizontal", 7),
    Sketcher.Constraint("Horizontal", 9),
    Sketcher.Constraint("Horizontal", 11),
    Sketcher.Constraint("Horizontal", 13),
    Sketcher.Constraint("Horizontal", 15),
    Sketcher.Constraint("Equal", 2, 4),
    Sketcher.Constraint("Equal", 6, 8),
    Sketcher.Constraint("Equal", 10, 12),
    Sketcher.Constraint("Horizontal", 6, 3, 8, 3),
    Sketcher.Constraint("Horizontal", 2, 3, 12, 3),
    Sketcher.Constraint("Vertical", 0, 3, 4, 3),
    Sketcher.Constraint("Vertical", 2, 3, 6, 3),
    Sketcher.Constraint("Vertical", 8, 3, 12, 3),
    Sketcher.Constraint("Vertical", 10, 3, 14, 3),
    Sketcher.Constraint("Equal", 7, 9),
    Sketcher.Constraint("Radius", 0, Q("4.5 mm")),
    Sketcher.Constraint("DistanceX", 1, 1, 1, 2, Q("3 mm")),
    Sketcher.Constraint("DistanceX", 0, 3, -1, 1, Q("67 mm")),
    Sketcher.Constraint("DistanceY", -1, 1, 0, 3, Q("40 mm")),
    Sketcher.Constraint("DistanceY", -1, 1, 4, 3, Q("68 mm")),
    Sketcher.Constraint("DistanceX", 8, 3, -1, 1, Q("27 mm")),
])
pocket5 = doc.addObject("PartDesign::Pocket", "Pocket004")
body.addObject(pocket5)
pocket5.Profile = sketch7
pocket5.Type = "ThroughAll"
body2 = doc.addObject("PartDesign::Body", "Body001")
doc.recompute()

body.Placement = App.Placement(Vector(0, 0, -28.5), App.Rotation(Vector(0, 0, 1), 0))
boolean = doc.addObject("PartDesign::Boolean", "Boolean")
body2.addObject(boolean)
boolean.Type = "Fuse"
boolean.addObjects([body])

doc.recompute()
